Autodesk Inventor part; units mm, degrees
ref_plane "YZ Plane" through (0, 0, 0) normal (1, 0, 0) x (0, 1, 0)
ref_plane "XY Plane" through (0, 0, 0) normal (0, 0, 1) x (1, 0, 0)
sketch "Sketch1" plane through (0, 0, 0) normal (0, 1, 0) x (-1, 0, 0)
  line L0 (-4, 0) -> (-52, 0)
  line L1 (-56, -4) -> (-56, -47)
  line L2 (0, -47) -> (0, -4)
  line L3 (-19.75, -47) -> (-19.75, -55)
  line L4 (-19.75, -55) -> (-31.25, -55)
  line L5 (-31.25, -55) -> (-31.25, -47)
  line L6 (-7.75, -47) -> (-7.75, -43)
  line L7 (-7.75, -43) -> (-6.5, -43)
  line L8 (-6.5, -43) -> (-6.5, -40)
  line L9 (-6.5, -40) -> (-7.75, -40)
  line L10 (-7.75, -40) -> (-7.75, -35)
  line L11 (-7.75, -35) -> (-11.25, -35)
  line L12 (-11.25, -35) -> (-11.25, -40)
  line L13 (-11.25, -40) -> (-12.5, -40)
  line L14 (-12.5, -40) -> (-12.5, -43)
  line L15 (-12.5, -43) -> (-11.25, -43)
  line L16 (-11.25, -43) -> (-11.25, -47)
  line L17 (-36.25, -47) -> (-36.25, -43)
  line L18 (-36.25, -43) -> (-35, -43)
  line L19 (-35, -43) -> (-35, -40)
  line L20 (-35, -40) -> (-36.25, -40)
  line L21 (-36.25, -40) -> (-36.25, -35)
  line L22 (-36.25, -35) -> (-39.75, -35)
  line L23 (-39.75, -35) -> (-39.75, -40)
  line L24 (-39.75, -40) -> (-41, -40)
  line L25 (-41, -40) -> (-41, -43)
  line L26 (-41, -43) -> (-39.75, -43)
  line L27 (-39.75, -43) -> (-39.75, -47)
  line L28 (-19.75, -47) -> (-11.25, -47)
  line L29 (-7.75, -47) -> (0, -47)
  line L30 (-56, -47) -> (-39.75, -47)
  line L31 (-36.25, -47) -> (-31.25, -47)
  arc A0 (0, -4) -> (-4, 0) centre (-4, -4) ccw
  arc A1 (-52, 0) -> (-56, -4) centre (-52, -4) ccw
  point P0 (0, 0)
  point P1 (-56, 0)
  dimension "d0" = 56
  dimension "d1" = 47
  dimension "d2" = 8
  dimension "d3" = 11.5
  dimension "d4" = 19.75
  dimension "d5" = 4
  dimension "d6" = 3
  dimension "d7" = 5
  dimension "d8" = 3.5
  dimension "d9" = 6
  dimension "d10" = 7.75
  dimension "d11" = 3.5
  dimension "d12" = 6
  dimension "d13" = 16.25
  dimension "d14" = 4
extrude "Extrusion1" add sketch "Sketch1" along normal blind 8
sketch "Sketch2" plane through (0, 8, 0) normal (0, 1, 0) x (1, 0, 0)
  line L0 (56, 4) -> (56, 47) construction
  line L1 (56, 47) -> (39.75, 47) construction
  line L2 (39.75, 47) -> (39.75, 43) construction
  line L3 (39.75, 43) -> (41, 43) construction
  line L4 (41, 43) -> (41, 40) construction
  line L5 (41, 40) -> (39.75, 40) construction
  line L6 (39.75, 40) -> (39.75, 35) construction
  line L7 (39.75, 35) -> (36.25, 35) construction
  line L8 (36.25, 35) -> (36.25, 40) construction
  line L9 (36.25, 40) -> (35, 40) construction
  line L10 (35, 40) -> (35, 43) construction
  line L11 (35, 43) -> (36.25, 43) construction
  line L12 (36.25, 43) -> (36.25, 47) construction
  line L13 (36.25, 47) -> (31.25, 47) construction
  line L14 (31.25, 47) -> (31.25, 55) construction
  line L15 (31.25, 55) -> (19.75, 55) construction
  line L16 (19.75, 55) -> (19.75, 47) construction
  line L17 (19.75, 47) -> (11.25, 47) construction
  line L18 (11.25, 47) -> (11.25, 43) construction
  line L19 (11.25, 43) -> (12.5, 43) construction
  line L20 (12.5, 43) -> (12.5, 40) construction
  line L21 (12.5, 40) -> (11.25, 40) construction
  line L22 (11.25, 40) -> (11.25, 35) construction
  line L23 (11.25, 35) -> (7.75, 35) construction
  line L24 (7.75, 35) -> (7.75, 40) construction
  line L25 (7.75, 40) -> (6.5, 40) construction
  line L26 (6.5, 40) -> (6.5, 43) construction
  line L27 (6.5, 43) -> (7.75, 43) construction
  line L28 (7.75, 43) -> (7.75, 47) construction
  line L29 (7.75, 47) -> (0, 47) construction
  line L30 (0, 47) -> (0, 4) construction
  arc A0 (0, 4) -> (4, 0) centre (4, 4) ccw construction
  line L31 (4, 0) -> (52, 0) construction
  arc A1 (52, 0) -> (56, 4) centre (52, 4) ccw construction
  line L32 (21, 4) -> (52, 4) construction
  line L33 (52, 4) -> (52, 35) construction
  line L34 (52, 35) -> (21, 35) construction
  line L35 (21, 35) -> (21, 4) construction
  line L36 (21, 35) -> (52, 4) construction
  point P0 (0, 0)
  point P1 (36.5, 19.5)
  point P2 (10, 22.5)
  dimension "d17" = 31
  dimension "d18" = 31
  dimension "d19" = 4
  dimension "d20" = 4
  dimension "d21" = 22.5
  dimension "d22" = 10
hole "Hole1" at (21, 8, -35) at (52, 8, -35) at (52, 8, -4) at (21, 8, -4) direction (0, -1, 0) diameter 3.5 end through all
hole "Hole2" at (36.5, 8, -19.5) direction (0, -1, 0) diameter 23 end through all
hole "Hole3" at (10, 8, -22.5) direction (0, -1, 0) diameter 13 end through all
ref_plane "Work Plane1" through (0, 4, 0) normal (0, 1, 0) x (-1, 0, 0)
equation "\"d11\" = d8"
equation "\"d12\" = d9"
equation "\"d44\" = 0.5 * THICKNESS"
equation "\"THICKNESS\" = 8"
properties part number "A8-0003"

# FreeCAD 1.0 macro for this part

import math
import FreeCAD as App
import Part
import Sketcher

V = App.Vector

doc = App.newDocument("Part")
body = doc.addObject("PartDesign::Body", "Body")

sketch1 = doc.addObject("Sketcher::SketchObject", "Sketch")
body.addObject(sketch1)
sketch1.AttachmentSupport = (doc.XZ_Plane, [""])
sketch1.MapMode = "FlatFace"
sketch1.addGeometry([
    Part.ArcOfCircle(Part.Circle(V(4, -4, 0), V(0, 0, 1), 4), math.radians(90), math.radians(180)),
    Part.LineSegment(V(4, 0, 0), V(52, 0, 0)),
    Part.ArcOfCircle(Part.Circle(V(52, -4, 0), V(0, 0, 1), 4), math.radians(0), math.radians(90)),
    Part.LineSegment(V(56, -4, 0), V(56, -47, 0)),
    Part.LineSegment(V(56, -47, 0), V(39.75, -47, 0)),
    Part.LineSegment(V(39.75, -47, 0), V(39.75, -43, 0)),
    Part.LineSegment(V(39.75, -43, 0), V(41, -43, 0)),
    Part.LineSegment(V(41, -43, 0), V(41, -40, 0)),
    Part.LineSegment(V(41, -40, 0), V(39.75, -40, 0)),
    Part.LineSegment(V(39.75, -40, 0), V(39.75, -35, 0)),
    Part.LineSegment(V(39.75, -35, 0), V(36.25, -35, 0)),
    Part.LineSegment(V(36.25, -35, 0), V(36.25, -40, 0)),
    Part.LineSegment(V(36.25, -40, 0), V(35, -40, 0)),
    Part.LineSegment(V(35, -40, 0), V(35, -43, 0)),
    Part.LineSegment(V(35, -43, 0), V(36.25, -43, 0)),
    Part.LineSegment(V(36.25, -43, 0), V(36.25, -47, 0)),
    Part.LineSegment(V(36.25, -47, 0), V(31.25, -47, 0)),
    Part.LineSegment(V(31.25, -47, 0), V(31.25, -55, 0)),
    Part.LineSegment(V(31.25, -55, 0), V(19.75, -55, 0)),
    Part.LineSegment(V(19.75, -55, 0), V(19.75, -47, 0)),
    Part.LineSegment(V(19.75, -47, 0), V(11.25, -47, 0)),
    Part.LineSegment(V(11.25, -47, 0), V(11.25, -43, 0)),
    Part.LineSegment(V(11.25, -43, 0), V(12.5, -43, 0)),
    Part.LineSegment(V(12.5, -43, 0), V(12.5, -40, 0)),
    Part.LineSegment(V(12.5, -40, 0), V(11.25, -40, 0)),
    Part.LineSegment(V(11.25, -40, 0), V(11.25, -35, 0)),
    Part.LineSegment(V(11.25, -35, 0), V(7.75, -35, 0)),
    Part.LineSegment(V(7.75, -35, 0), V(7.75, -40, 0)),
    Part.LineSegment(V(7.75, -40, 0), V(6.5, -40, 0)),
    Part.LineSegment(V(6.5, -40, 0), V(6.5, -43, 0)),
    Part.LineSegment(V(6.5, -43, 0), V(7.75, -43, 0)),
    Part.LineSegment(V(7.75, -43, 0), V(7.75, -47, 0)),
    Part.LineSegment(V(7.75, -47, 0), V(0, -47, 0)),
    Part.LineSegment(V(0, -47, 0), V(0, -4, 0)),
], False)
sketch1.addConstraint([
    Sketcher.Constraint("Tangent", 0, 1, 1, 1),
    Sketcher.Constraint("Tangent", 1, 2, 2, 2),
    Sketcher.Constraint("Tangent", 2, 1, 3, 1),
    Sketcher.Constraint("Coincident", 3, 2, 4, 1),
    Sketcher.Constraint("Coincident", 4, 2, 5, 1),
    Sketcher.Constraint("Coincident", 5, 2, 6, 1),
    Sketcher.Constraint("Coincident", 6, 2, 7, 1),
    Sketcher.Constraint("Coincident", 7, 2, 8, 1),
    Sketcher.Constraint("Coincident", 8, 2, 9, 1),
    Sketcher.Constraint("Coincident", 9, 2, 10, 1),
    Sketcher.Constraint("Coincident", 10, 2, 11, 1),
    Sketcher.Constraint("Coincident", 11, 2, 12, 1),
    Sketcher.Constraint("Coincident", 12, 2, 13, 1),
    Sketcher.Constraint("Coincident", 13, 2, 14, 1),
    Sketcher.Constraint("Coincident", 14, 2, 15, 1),
    Sketcher.Constraint("Coincident", 15, 2, 16, 1),
    Sketcher.Constraint("Coincident", 16, 2, 17, 1),
    Sketcher.Constraint("Coincident", 17, 2, 18, 1),
    Sketcher.Constraint("Coincident", 18, 2, 19, 1),
    Sketcher.Constraint("Coincident", 19, 2, 20, 1),
    Sketcher.Constraint("Coincident", 20, 2, 21, 1),
    Sketcher.Constraint("Coincident", 21, 2, 22, 1),
    Sketcher.Constraint("Coincident", 22, 2, 23, 1),
    Sketcher.Constraint("Coincident", 23, 2, 24, 1),
    Sketcher.Constraint("Coincident", 24, 2, 25, 1),
    Sketcher.Constraint("Coincident", 25, 2, 26, 1),
    Sketcher.Constraint("Coincident", 26, 2, 27, 1),
    Sketcher.Constraint("Coincident", 27, 2, 28, 1),
    Sketcher.Constraint("Coincident", 28, 2, 29, 1),
    Sketcher.Constraint("Coincident", 29, 2, 30, 1),
    Sketcher.Constraint("Coincident", 30, 2, 31, 1),
    Sketcher.Constraint("Coincident", 31, 2, 32, 1),
    Sketcher.Constraint("Coincident", 32, 2, 33, 1),
    Sketcher.Constraint("Tangent", 33, 2, 0, 2),
    Sketcher.Constraint("Horizontal", 1),
    Sketcher.Constraint("Vertical", 3),
    Sketcher.Constraint("Horizontal", 4),
    Sketcher.Constraint("Vertical", 5),
    Sketcher.Constraint("Horizontal", 6),
    Sketcher.Constraint("Vertical", 7),
    Sketcher.Constraint("Horizontal", 8),
    Sketcher.Constraint("Vertical", 9),
    Sketcher.Constraint("Horizontal", 10),
    Sketcher.Constraint("Vertical", 11),
    Sketcher.Constraint("Horizontal", 12),
    Sketcher.Constraint("Vertical", 13),
    Sketcher.Constraint("Horizontal", 14),
    Sketcher.Constraint("Vertical", 15),
    Sketcher.Constraint("Horizontal", 16),
    Sketcher.Constraint("Vertical", 17),
    Sketcher.Constraint("Horizontal", 18),
    Sketcher.Constraint("Vertical", 19),
    Sketcher.Constraint("Horizontal", 20),
    Sketcher.Constraint("Vertical", 21),
    Sketcher.Constraint("Horizontal", 22),
    Sketcher.Constraint("Vertical", 23),
    Sketcher.Constraint("Horizontal", 24),
    Sketcher.Constraint("Vertical", 25),
    Sketcher.Constraint("Horizontal", 26),
    Sketcher.Constraint("Vertical", 27),
    Sketcher.Constraint("Horizontal", 28),
    Sketcher.Constraint("Vertical", 29),
    Sketcher.Constraint("Horizontal", 30),
    Sketcher.Constraint("Vertical", 31),
    Sketcher.Constraint("Horizontal", 32),
    Sketcher.Constraint("Vertical", 33),
    Sketcher.Constraint("Equal", 0, 2),
    Sketcher.Constraint("PointOnObject", 0, 1, -1),
    Sketcher.Constraint("PointOnObject", 32, 2, -2),
    Sketcher.Constraint("Horizontal", 8, 2, 11, 2),
    Sketcher.Constraint("Horizontal", 6, 2, 13, 2),
    Sketcher.Constraint("Horizontal", 4, 2, 15, 2),
    Sketcher.Constraint("Horizontal", 16, 2, 19, 2),
    Sketcher.Constraint("Horizontal", 14, 2, 21, 2),
    Sketcher.Constraint("Horizontal", 12, 2, 23, 2),
    Sketcher.Constraint("Horizontal", 10, 2, 25, 2),
    Sketcher.Constraint("Horizontal", 24, 2, 27, 2),
    Sketcher.Constraint("Horizontal", 22, 2, 29, 2),
    Sketcher.Constraint("Horizontal", 20, 2, 31, 2),
    Sketcher.Constraint("Vertical", 5, 2, 8, 2),
    Sketcher.Constraint("Vertical", 11, 2, 14, 2),
    Sketcher.Constraint("Vertical", 21, 2, 24, 2),
    Sketcher.Constraint("Vertical", 27, 2, 30, 2),
    Sketcher.Constraint("Equal", 8, 12),
    Sketcher.Constraint("Equal", 14, 22),
    Sketcher.Constraint("Equal", 10, 26),
    Sketcher.Constraint("Equal", 24, 28),
    Sketcher.Constraint("Equal", 16, 9),
    Sketcher.Constraint("Radius", 0, 4.0),
    Sketcher.Constraint("DistanceX", 16, 2, 16, 1, 5.0),
    Sketcher.Constraint("DistanceY", 5, 1, 5, 2, 4.0),
    Sketcher.Constraint("DistanceY", 7, 1, 7, 2, 3.0),
    Sketcher.Constraint("DistanceY", 17, 2, 17, 1, 8.0),
    Sketcher.Constraint("DistanceX", 10, 2, 10, 1, 3.5),
    Sketcher.Constraint("DistanceX", 18, 2, 18, 1, 11.5),
    Sketcher.Constraint("DistanceX", -1, 1, 2, 1, 56.0),
    Sketcher.Constraint("DistanceY", 3, 2, -1, 1, 47.0),
    Sketcher.Constraint("DistanceX", 12, 2, 7, 2, 6.0),
    Sketcher.Constraint("DistanceX", 4, 2, 4, 1, 16.25),
    Sketcher.Constraint("DistanceX", 32, 2, 32, 1, 7.75),
])
pad1 = doc.addObject("PartDesign::Pad", "Pad")
body.addObject(pad1)
pad1.Profile = sketch1
pad1.Length = 8
pad1.Reversed = True

sketch2 = doc.addObject("Sketcher::SketchObject", "Sketch001")
body.addObject(sketch2)
sketch2.AttachmentSupport = (doc.XZ_Plane, [""])
sketch2.MapMode = "FlatFace"
sketch2.AttachmentOffset = App.Placement(V(0, 0, -8), App.Rotation())
sketch2.addGeometry([
    Part.Circle(V(21, -35, 0), V(0, 0, 1), 1.75),
    Part.Circle(V(52, -35, 0), V(0, 0, 1), 1.75),
    Part.Circle(V(52, -4, 0), V(0, 0, 1), 1.75),
    Part.Circle(V(21, -4, 0), V(0, 0, 1), 1.75),
], False)
sketch2.addConstraint([
    Sketcher.Constraint("Equal", 0, 1),
    Sketcher.Constraint("Equal", 1, 2),
    Sketcher.Constraint("Equal", 2, 3),
    Sketcher.Constraint("Horizontal", 0, 3, 1, 3),
    Sketcher.Constraint("Horizontal", 2, 3, 3, 3),
    Sketcher.Constraint("Vertical", 1, 3, 2, 3),
    Sketcher.Constraint("Vertical", 0, 3, 3, 3),
    Sketcher.Constraint("Diameter", 0, 3.5),
    Sketcher.Constraint("DistanceX", -1, 1, 0, 3, 21.0),
    Sketcher.Constraint("DistanceY", 0, 3, -1, 1, 35.0),
    Sketcher.Constraint("DistanceX", -1, 1, 1, 3, 52.0),
    Sketcher.Constraint("DistanceY", 2, 3, -1, 1, 4.0),
])
doc.recompute()
hole = doc.addObject("PartDesign::Hole", "Hole")
body.addObject(hole)
hole.Profile = sketch2
hole.ThreadType = "None"
hole.Diameter = 3.5
hole.DepthType = "ThroughAll"
hole.Reversed = True

sketch3 = doc.addObject("Sketcher::SketchObject", "Sketch002")
body.addObject(sketch3)
sketch3.AttachmentSupport = (doc.XZ_Plane, [""])
sketch3.MapMode = "FlatFace"
sketch3.AttachmentOffset = App.Placement(V(0, 0, -8), App.Rotation())
sketch3.addGeometry(Part.Circle(V(36.5, -19.5, 0), V(0, 0, 1), 11.5), False)
sketch3.addConstraint([
    Sketcher.Constraint("Diameter", 0, 23.0),
    Sketcher.Constraint("DistanceX", -1, 1, 0, 3, 36.5),
    Sketcher.Constraint("DistanceY", 0, 3, -1, 1, 19.5),
])
doc.recompute()
hole2 = doc.addObject("PartDesign::Hole", "Hole001")
body.addObject(hole2)
hole2.Profile = sketch3
hole2.ThreadType = "None"
hole2.Diameter = 23
hole2.DepthType = "ThroughAll"
hole2.Reversed = True

sketch4 = doc.addObject("Sketcher::SketchObject", "Sketch003")
body.addObject(sketch4)
sketch4.AttachmentSupport = (doc.XZ_Plane, [""])
sketch4.MapMode = "FlatFace"
sketch4.AttachmentOffset = App.Placement(V(0, 0, -8), App.Rotation())
sketch4.addGeometry(Part.Circle(V(10, -22.5, 0), V(0, 0, 1), 6.5), False)
sketch4.addConstraint([
    Sketcher.Constraint("Diameter", 0, 13.0),
    Sketcher.Constraint("DistanceX", -1, 1, 0, 3, 10.0),
    Sketcher.Constraint("DistanceY", 0, 3, -1, 1, 22.5),
])
doc.recompute()
hole3 = doc.addObject("PartDesign::Hole", "Hole002")
body.addObject(hole3)
hole3.Profile = sketch4
hole3.ThreadType = "None"
hole3.Diameter = 13
hole3.DepthType = "ThroughAll"
hole3.Reversed = True

doc.recompute()
